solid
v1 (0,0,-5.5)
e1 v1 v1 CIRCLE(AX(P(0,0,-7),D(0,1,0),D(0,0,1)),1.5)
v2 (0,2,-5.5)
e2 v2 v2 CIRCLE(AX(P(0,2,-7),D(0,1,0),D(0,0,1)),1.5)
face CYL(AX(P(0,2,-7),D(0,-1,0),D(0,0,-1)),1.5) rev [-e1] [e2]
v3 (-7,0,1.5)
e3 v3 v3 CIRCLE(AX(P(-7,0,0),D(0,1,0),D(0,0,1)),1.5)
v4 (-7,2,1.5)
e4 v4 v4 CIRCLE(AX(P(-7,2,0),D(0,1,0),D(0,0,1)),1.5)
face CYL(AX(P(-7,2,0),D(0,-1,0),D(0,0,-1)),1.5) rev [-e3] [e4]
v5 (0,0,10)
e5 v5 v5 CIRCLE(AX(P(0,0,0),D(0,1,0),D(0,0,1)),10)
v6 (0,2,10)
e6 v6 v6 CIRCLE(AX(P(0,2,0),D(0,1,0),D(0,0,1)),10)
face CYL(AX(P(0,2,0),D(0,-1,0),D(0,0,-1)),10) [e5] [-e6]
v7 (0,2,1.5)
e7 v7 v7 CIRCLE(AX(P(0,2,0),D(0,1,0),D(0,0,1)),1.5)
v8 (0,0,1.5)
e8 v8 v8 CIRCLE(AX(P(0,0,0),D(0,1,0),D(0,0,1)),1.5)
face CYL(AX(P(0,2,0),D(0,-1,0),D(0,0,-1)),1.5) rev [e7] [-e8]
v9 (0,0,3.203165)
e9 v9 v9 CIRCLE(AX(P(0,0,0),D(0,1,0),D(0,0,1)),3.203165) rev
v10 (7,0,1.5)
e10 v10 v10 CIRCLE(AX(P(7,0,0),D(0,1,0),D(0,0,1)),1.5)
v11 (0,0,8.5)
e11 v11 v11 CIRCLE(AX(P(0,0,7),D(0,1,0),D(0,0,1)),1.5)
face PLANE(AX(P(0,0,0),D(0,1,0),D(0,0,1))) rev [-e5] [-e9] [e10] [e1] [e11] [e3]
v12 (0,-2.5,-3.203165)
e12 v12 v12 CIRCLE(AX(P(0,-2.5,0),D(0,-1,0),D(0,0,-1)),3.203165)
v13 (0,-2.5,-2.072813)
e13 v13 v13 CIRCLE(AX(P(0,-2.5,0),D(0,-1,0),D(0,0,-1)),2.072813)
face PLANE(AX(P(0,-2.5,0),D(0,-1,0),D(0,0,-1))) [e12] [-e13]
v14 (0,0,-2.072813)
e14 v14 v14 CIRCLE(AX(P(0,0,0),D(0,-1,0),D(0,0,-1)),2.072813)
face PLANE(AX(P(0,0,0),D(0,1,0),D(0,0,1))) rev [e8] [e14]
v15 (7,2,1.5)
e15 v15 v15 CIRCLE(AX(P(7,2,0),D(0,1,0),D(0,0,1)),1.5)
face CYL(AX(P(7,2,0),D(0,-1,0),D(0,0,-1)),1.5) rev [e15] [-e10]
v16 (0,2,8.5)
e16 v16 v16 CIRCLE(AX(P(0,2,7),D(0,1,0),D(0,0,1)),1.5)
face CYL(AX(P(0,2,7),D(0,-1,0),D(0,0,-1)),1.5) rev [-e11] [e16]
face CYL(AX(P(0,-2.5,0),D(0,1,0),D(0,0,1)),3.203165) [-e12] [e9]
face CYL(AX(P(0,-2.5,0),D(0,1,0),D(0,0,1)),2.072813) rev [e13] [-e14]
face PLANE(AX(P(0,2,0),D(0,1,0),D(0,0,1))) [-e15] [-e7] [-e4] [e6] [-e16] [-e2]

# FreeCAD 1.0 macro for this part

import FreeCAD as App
import Part
import Sketcher
from FreeCAD import Vector
Q = App.Units.Quantity

doc = App.newDocument("Part")
params = doc.addObject("Spreadsheet::Sheet", "Params")
for row, (alias, value) in enumerate([
    ("sketch1_diameter", "20 mm"),
    ("sketch1_diameter2", "3 mm"),
    ("pad1_length", "2 mm"),
    ("pad2_length", "2.5 mm"),
], start=1):
    params.set(f"A{row}", alias)
    params.set(f"B{row}", "=" + value)
    params.setAlias(f"B{row}", alias)

body = doc.addObject("PartDesign::Body", "Body")

# Sketch on XZ plane
sketch1 = body.newObject("Sketcher::SketchObject", "Sketch")
sketch1.AttachmentSupport = (doc.getObject("XZ_Plane"), [""])
sketch1.MapMode = "FlatFace"
sketch1.addGeometry(Part.Circle(Vector(0, 0, 0), Vector(0, 0, 1), 10), False)
sketch1.addGeometry(Part.Circle(Vector(0, -7, 0), Vector(0, 0, 1), 1.5), False)
sketch1.addGeometry(Part.Circle(Vector(-7, 0, 0), Vector(0, 0, 1), 1.5), False)
sketch1.addGeometry(Part.Circle(Vector(7, 0, 0), Vector(0, 0, 1), 1.5), False)
sketch1.addGeometry(Part.Circle(Vector(0, 0, 0), Vector(0, 0, 1), 1.5), False)
sketch1.addGeometry(Part.Circle(Vector(0, 7, 0), Vector(0, 0, 1), 1.5), False)
sketch1.addConstraint(Sketcher.Constraint("Coincident", 0, 3, -1, 1))
sketch1.addConstraint(Sketcher.Constraint("Coincident", 4, 3, -1, 1))
sketch1.addConstraint(Sketcher.Constraint("Equal", 1, 2))
sketch1.addConstraint(Sketcher.Constraint("Equal", 2, 3))
sketch1.addConstraint(Sketcher.Constraint("Equal", 3, 4))
sketch1.addConstraint(Sketcher.Constraint("Equal", 4, 5))
sketch1.addConstraint(Sketcher.Constraint("Symmetric", 2, 3, 3, 3, -1, 1))
sketch1.addConstraint(Sketcher.Constraint("Symmetric", 1, 3, 5, 3, -1, 1))
sketch1.addConstraint(Sketcher.Constraint("PointOnObject", 1, 3, -2))
sketch1.addConstraint(Sketcher.Constraint("PointOnObject", 2, 3, -1))
sketch1.addConstraint(Sketcher.Constraint("Diameter", 0, Q("20 mm")))
sketch1.addConstraint(Sketcher.Constraint("Diameter", 1, Q("3 mm")))
sketch1.addConstraint(Sketcher.Constraint("DistanceY", 1, 3, -1, 1, Q("7 mm")))
sketch1.addConstraint(Sketcher.Constraint("DistanceX", 2, 3, -1, 1, Q("7 mm")))
sketch1.setExpression("Constraints[10]", "Params.sketch1_diameter")
sketch1.setExpression("Constraints[11]", "Params.sketch1_diameter2")
pad1 = body.newObject("PartDesign::Pad", "Pad")
pad1.Profile = sketch1
pad1.setExpression("Length", "Params.pad1_length")
pad1.Reversed = True

# Sketch on XZ plane
sketch2 = body.newObject("Sketcher::SketchObject", "Sketch001")
sketch2.AttachmentSupport = (doc.getObject("XZ_Plane"), [""])
sketch2.MapMode = "FlatFace"
sketch2.addGeometry(Part.Circle(Vector(0, 0, 0), Vector(0, 0, 1), 3.2), False)
sketch2.addGeometry(Part.Circle(Vector(0, 0, 0), Vector(0, 0, 1), 2.1), False)
sketch2.addConstraint(Sketcher.Constraint("Coincident", 0, 3, -1, 1))
sketch2.addConstraint(Sketcher.Constraint("Coincident", 1, 3, -1, 1))
sketch2.addConstraint(Sketcher.Constraint("Diameter", 0, Q("6.406331 mm")))
sketch2.addConstraint(Sketcher.Constraint("Diameter", 1, Q("4.145626 mm")))
pad2 = body.newObject("PartDesign::Pad", "Pad001")
pad2.Profile = sketch2
pad2.setExpression("Length", "Params.pad2_length")

doc.recompute()
